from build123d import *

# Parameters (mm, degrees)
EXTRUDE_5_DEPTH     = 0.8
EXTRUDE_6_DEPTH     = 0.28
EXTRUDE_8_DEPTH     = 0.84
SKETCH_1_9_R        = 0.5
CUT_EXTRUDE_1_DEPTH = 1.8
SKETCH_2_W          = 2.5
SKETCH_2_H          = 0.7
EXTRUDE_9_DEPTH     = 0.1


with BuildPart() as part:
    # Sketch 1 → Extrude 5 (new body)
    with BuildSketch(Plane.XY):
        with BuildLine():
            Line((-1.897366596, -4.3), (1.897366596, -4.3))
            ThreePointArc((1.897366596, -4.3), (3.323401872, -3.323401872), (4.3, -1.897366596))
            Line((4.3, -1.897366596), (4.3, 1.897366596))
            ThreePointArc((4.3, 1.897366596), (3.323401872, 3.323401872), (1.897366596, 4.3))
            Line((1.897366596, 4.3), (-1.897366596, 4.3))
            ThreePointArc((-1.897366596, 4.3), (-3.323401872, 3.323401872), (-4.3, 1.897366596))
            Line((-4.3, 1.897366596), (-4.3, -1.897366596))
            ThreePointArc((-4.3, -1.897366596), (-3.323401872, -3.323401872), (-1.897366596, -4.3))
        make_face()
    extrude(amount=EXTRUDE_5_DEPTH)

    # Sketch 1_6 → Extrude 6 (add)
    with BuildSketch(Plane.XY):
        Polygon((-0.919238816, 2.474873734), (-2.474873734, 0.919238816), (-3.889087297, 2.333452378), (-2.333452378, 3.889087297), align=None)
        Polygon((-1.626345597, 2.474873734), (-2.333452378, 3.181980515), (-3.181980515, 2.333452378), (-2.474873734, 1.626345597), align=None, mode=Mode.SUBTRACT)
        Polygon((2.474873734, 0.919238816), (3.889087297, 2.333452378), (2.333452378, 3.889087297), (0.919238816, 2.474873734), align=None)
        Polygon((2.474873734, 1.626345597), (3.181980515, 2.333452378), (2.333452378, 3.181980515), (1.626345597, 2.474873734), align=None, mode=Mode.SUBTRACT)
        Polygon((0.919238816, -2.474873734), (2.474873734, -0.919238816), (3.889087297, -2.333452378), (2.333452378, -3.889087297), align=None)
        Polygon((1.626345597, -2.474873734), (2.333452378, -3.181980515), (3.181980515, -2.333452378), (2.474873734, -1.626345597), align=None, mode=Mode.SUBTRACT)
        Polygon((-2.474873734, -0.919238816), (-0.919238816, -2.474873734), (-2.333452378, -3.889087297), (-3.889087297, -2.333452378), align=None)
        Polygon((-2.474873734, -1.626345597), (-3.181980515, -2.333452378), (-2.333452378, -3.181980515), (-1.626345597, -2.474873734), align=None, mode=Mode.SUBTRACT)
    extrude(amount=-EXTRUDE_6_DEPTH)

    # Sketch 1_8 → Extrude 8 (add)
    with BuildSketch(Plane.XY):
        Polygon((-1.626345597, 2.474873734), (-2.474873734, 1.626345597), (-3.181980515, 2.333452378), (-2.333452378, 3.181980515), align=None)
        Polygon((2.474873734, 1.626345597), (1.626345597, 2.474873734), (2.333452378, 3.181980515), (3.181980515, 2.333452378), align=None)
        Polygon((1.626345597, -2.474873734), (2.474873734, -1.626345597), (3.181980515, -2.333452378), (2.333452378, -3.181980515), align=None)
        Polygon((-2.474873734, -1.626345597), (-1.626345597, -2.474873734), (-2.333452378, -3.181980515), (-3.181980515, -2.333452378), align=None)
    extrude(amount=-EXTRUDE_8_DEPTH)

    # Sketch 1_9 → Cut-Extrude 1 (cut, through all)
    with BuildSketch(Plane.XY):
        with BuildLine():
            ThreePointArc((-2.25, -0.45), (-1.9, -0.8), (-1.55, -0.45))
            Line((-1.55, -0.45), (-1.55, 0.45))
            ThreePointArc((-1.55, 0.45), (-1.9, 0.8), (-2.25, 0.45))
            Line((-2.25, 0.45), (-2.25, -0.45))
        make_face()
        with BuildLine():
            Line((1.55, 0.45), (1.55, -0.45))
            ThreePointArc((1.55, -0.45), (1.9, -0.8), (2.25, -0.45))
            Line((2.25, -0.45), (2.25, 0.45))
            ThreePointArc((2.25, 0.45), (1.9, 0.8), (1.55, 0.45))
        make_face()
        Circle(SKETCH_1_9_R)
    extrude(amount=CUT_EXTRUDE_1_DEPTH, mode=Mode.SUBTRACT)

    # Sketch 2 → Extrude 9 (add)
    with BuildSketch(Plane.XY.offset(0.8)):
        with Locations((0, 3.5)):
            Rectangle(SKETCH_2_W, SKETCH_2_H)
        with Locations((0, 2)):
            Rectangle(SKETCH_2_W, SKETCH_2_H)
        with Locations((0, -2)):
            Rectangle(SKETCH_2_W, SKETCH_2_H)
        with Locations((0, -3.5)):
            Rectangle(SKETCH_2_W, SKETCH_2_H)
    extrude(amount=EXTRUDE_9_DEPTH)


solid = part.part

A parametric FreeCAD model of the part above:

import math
import FreeCAD as App
import Part
import Sketcher
from FreeCAD import Vector
Q = App.Units.Quantity


def add_polygon(sketch, points):
    """Adds a closed chain of lines whose ends are joined by coincident constraints."""
    first, n = sketch.GeometryCount, len(points)
    for a, b in zip(points, points[1:] + points[:1]):
        sketch.addGeometry(Part.LineSegment(App.Vector(*a, 0), App.Vector(*b, 0)), False)
    for i in range(n):
        sketch.addConstraint(Sketcher.Constraint("Coincident", first + i, 2, first + (i + 1) % n, 1))

doc = App.newDocument("Part")
body = doc.addObject("PartDesign::Body", "Body")

sketch1 = body.newObject("Sketcher::SketchObject", "Sketch")
sketch1.AttachmentSupport = (doc.getObject("XY_Plane"), [""])
sketch1.MapMode = "FlatFace"
sketch1.addGeometry([
    Part.LineSegment(Vector(-1.9, -4.3, 0), Vector(1.9, -4.3, 0)),
    Part.ArcOfCircle(Part.Circle(Vector(0, 0, 0), Vector(0, 0, 1), 4.7), math.radians(-66), math.radians(-24)),
    Part.LineSegment(Vector(4.3, -1.9, 0), Vector(4.3, 1.9, 0)),
    Part.ArcOfCircle(Part.Circle(Vector(0, 0, 0), Vector(0, 0, 1), 4.7), math.radians(24), math.radians(66)),
    Part.LineSegment(Vector(1.9, 4.3, 0), Vector(-1.9, 4.3, 0)),
    Part.ArcOfCircle(Part.Circle(Vector(0, 0, 0), Vector(0, 0, 1), 4.7), math.radians(114), math.radians(156)),
    Part.LineSegment(Vector(-4.3, 1.9, 0), Vector(-4.3, -1.9, 0)),
    Part.ArcOfCircle(Part.Circle(Vector(0, 0, 0), Vector(0, 0, 1), 4.7), math.radians(-156), math.radians(-114)),
], False)
sketch1.addConstraint([
    Sketcher.Constraint("Coincident", 0, 2, 1, 1),
    Sketcher.Constraint("Coincident", 1, 2, 2, 1),
    Sketcher.Constraint("Coincident", 2, 2, 3, 1),
    Sketcher.Constraint("Coincident", 3, 2, 4, 1),
    Sketcher.Constraint("Coincident", 4, 2, 5, 1),
    Sketcher.Constraint("Coincident", 5, 2, 6, 1),
    Sketcher.Constraint("Coincident", 6, 2, 7, 1),
    Sketcher.Constraint("Coincident", 7, 2, 0, 1),
    Sketcher.Constraint("Horizontal", 0),
    Sketcher.Constraint("Vertical", 2),
    Sketcher.Constraint("Horizontal", 4),
    Sketcher.Constraint("Vertical", 6),
    Sketcher.Constraint("Coincident", 1, 3, -1, 1),
    Sketcher.Constraint("Coincident", 3, 3, -1, 1),
    Sketcher.Constraint("Coincident", 5, 3, -1, 1),
    Sketcher.Constraint("Coincident", 7, 3, -1, 1),
    Sketcher.Constraint("Equal", 1, 3),
    Sketcher.Constraint("Equal", 3, 5),
    Sketcher.Constraint("Equal", 5, 7),
    Sketcher.Constraint("Horizontal", 2, 2, 5, 2),
    Sketcher.Constraint("Vertical", 0, 2, 3, 2),
    Sketcher.Constraint("Equal", 4, 2),
    Sketcher.Constraint("Radius", 1, Q("4.7 mm")),
    Sketcher.Constraint("DistanceY", 0, 2, -1, 1, Q("4.3 mm")),
])
pad1 = body.newObject("PartDesign::Pad", "Pad")
pad1.Profile = sketch1
pad1.Length = 0.8

sketch2 = body.newObject("Sketcher::SketchObject", "Sketch001")
sketch2.AttachmentSupport = (doc.getObject("XY_Plane"), [""])
sketch2.MapMode = "FlatFace"
add_polygon(sketch2, [(-2.5, 0.9), (-0.9, 2.5), (-2.3, 3.9), (-3.9, 2.3)])
add_polygon(sketch2, [(-1.6, 2.5), (-2.5, 1.6), (-3.2, 2.3), (-2.3, 3.2)])
add_polygon(sketch2, [(2.5, 0.9), (3.9, 2.3), (2.3, 3.9), (0.9, 2.5)])
add_polygon(sketch2, [(3.2, 2.3), (2.5, 1.6), (1.6, 2.5), (2.3, 3.2)])
add_polygon(sketch2, [(2.5, -0.9), (0.9, -2.5), (2.3, -3.9), (3.9, -2.3)])
add_polygon(sketch2, [(1.6, -2.5), (2.5, -1.6), (3.2, -2.3), (2.3, -3.2)])
add_polygon(sketch2, [(-0.9, -2.5), (-2.5, -0.9), (-3.9, -2.3), (-2.3, -3.9)])
add_polygon(sketch2, [(-2.5, -1.6), (-1.6, -2.5), (-2.3, -3.2), (-3.2, -2.3)])
sketch2.addConstraint([
    Sketcher.Constraint("Symmetric", 0, 2, 16, 2, -1, 1),
    Sketcher.Constraint("Symmetric", 1, 2, 17, 2, -1, 1),
    Sketcher.Constraint("Symmetric", 2, 2, 18, 2, -1, 1),
    Sketcher.Constraint("Symmetric", 3, 2, 19, 2, -1, 1),
    Sketcher.Constraint("Symmetric", 4, 2, 20, 2, -1, 1),
    Sketcher.Constraint("Symmetric", 5, 2, 21, 2, -1, 1),
    Sketcher.Constraint("Symmetric", 6, 2, 22, 2, -1, 1),
    Sketcher.Constraint("Symmetric", 7, 2, 23, 2, -1, 1),
    Sketcher.Constraint("Symmetric", 11, 2, 24, 2, -1, 1),
    Sketcher.Constraint("Symmetric", 8, 2, 25, 2, -1, 1),
    Sketcher.Constraint("Symmetric", 9, 2, 26, 2, -1, 1),
    Sketcher.Constraint("Symmetric", 10, 2, 27, 2, -1, 1),
    Sketcher.Constraint("Symmetric", 13, 2, 28, 2, -1, 1),
    Sketcher.Constraint("Symmetric", 14, 2, 29, 2, -1, 1),
    Sketcher.Constraint("Symmetric", 15, 2, 30, 2, -1, 1),
    Sketcher.Constraint("Symmetric", 12, 2, 31, 2, -1, 1),
    Sketcher.Constraint("Symmetric", 2, 2, 8, 2, -2),
    Sketcher.Constraint("Symmetric", 1, 2, 9, 2, -2),
    Sketcher.Constraint("Symmetric", 0, 2, 10, 2, -2),
    Sketcher.Constraint("Symmetric", 3, 2, 11, 2, -2),
    Sketcher.Constraint("Symmetric", 4, 2, 12, 2, -2),
    Sketcher.Constraint("Symmetric", 7, 2, 13, 2, -2),
    Sketcher.Constraint("Symmetric", 6, 2, 14, 2, -2),
    Sketcher.Constraint("Symmetric", 5, 2, 15, 2, -2),
    Sketcher.Constraint("Perpendicular", 0, 1),
    Sketcher.Constraint("Perpendicular", 1, 2),
    Sketcher.Constraint("Perpendicular", 2, 3),
    Sketcher.Constraint("Perpendicular", 3, 4),
    Sketcher.Constraint("Perpendicular", 4, 5),
    Sketcher.Constraint("Perpendicular", 5, 6),
    Sketcher.Constraint("Perpendicular", 6, 7),
    Sketcher.Constraint("Perpendicular", 7, 8),
    Sketcher.Constraint("Horizontal", 2, 2, 5, 2),
    Sketcher.Constraint("Horizontal", 0, 2, 7, 2),
    Sketcher.Constraint("Vertical", 3, 2, 4, 2),
    Sketcher.Constraint("Distance", 1, Q("2 mm")),
    Sketcher.Constraint("Distance", 5, Q("1 mm")),
    Sketcher.Constraint("Distance", 0, Q("2.2 mm")),
    Sketcher.Constraint("DistanceX", 0, 2, -1, 1, Q("0.919239 mm")),
    Sketcher.Constraint("DistanceY", -1, 1, 3, 2, Q("0.919239 mm")),
])
pad2 = body.newObject("PartDesign::Pad", "Pad001")
pad2.Profile = sketch2
pad2.Length = 0.28
pad2.Reversed = True

sketch3 = body.newObject("Sketcher::SketchObject", "Sketch002")
sketch3.AttachmentSupport = (doc.getObject("XY_Plane"), [""])
sketch3.MapMode = "FlatFace"
add_polygon(sketch3, [(-2.5, 1.6), (-1.6, 2.5), (-2.3, 3.2), (-3.2, 2.3)])
add_polygon(sketch3, [(1.6, 2.5), (2.5, 1.6), (3.2, 2.3), (2.3, 3.2)])
add_polygon(sketch3, [(2.5, -1.6), (1.6, -2.5), (2.3, -3.2), (3.2, -2.3)])
add_polygon(sketch3, [(-1.6, -2.5), (-2.5, -1.6), (-3.2, -2.3), (-2.3, -3.2)])
sketch3.addConstraint([
    Sketcher.Constraint("Symmetric", 0, 2, 8, 2, -1, 1),
    Sketcher.Constraint("Symmetric", 1, 2, 9, 2, -1, 1),
    Sketcher.Constraint("Symmetric", 2, 2, 10, 2, -1, 1),
    Sketcher.Constraint("Symmetric", 3, 2, 11, 2, -1, 1),
    Sketcher.Constraint("Symmetric", 4, 2, 12, 2, -1, 1),
    Sketcher.Constraint("Symmetric", 5, 2, 13, 2, -1, 1),
    Sketcher.Constraint("Symmetric", 6, 2, 14, 2, -1, 1),
    Sketcher.Constraint("Symmetric", 7, 2, 15, 2, -1, 1),
    Sketcher.Constraint("Symmetric", 3, 2, 4, 2, -2),
    Sketcher.Constraint("Symmetric", 2, 2, 5, 2, -2),
    Sketcher.Constraint("Symmetric", 1, 2, 6, 2, -2),
    Sketcher.Constraint("Symmetric", 0, 2, 7, 2, -2),
    Sketcher.Constraint("Perpendicular", 0, 1),
    Sketcher.Constraint("Perpendicular", 1, 2),
    Sketcher.Constraint("Perpendicular", 2, 3),
    Sketcher.Constraint("Parallel", 3, 4),
    Sketcher.Constraint("Distance", 1, Q("1 mm")),
    Sketcher.Constraint("Distance", 0, Q("1.2 mm")),
    Sketcher.Constraint("DistanceY", -1, 1, 1, 2, Q("3.181981 mm")),
    Sketcher.Constraint("DistanceX", 2, 2, -1, 1, Q("3.181981 mm")),
])
pad3 = body.newObject("PartDesign::Pad", "Pad002")
pad3.Profile = sketch3
pad3.Length = 0.84
pad3.Reversed = True

sketch4 = body.newObject("Sketcher::SketchObject", "Sketch003")
sketch4.AttachmentSupport = (doc.getObject("XY_Plane"), [""])
sketch4.MapMode = "FlatFace"
sketch4.addGeometry([
    Part.ArcOfCircle(Part.Circle(Vector(-1.9, -0.45, 0), Vector(0, 0, 1), 0.35), math.radians(180), math.radians(360)),
    Part.LineSegment(Vector(-1.55, -0.45, 0), Vector(-1.55, 0.45, 0)),
    Part.ArcOfCircle(Part.Circle(Vector(-1.9, 0.45, 0), Vector(0, 0, 1), 0.35), math.radians(0), math.radians(180)),
    Part.LineSegment(Vector(-2.25, 0.45, 0), Vector(-2.25, -0.45, 0)),
    Part.LineSegment(Vector(1.55, 0.45, 0), Vector(1.55, -0.45, 0)),
    Part.ArcOfCircle(Part.Circle(Vector(1.9, -0.45, 0), Vector(0, 0, 1), 0.35), math.radians(180), math.radians(360)),
    Part.LineSegment(Vector(2.25, -0.45, 0), Vector(2.25, 0.45, 0)),
    Part.ArcOfCircle(Part.Circle(Vector(1.9, 0.45, 0), Vector(0, 0, 1), 0.35), math.radians(0), math.radians(180)),
    Part.Circle(Vector(0, 0, 0), Vector(0, 0, 1), 0.5),
], False)
sketch4.addConstraint([
    Sketcher.Constraint("Tangent", 0, 2, 1, 1),
    Sketcher.Constraint("Tangent", 1, 2, 2, 1),
    Sketcher.Constraint("Tangent", 2, 2, 3, 1),
    Sketcher.Constraint("Tangent", 3, 2, 0, 1),
    Sketcher.Constraint("Tangent", 4, 2, 5, 1),
    Sketcher.Constraint("Tangent", 5, 2, 6, 1),
    Sketcher.Constraint("Tangent", 6, 2, 7, 1),
    Sketcher.Constraint("Tangent", 7, 2, 4, 1),
    Sketcher.Constraint("Vertical", 1),
    Sketcher.Constraint("Vertical", 3),
    Sketcher.Constraint("Vertical", 4),
    Sketcher.Constraint("Vertical", 6),
    Sketcher.Constraint("Coincident", 8, 3, -1, 1),
    Sketcher.Constraint("Equal", 2, 5),
    Sketcher.Constraint("Symmetric", 2, 3, 5, 3, -1, 1),
    Sketcher.Constraint("Horizontal", 0, 3, 5, 3),
    Sketcher.Constraint("Horizontal", 2, 3, 7, 3),
    Sketcher.Constraint("Diameter", 8, Q("1 mm")),
    Sketcher.Constraint("Radius", 0, Q("0.35 mm")),
    Sketcher.Constraint("DistanceY", 1, 1, 1, 2, Q("0.9 mm")),
    Sketcher.Constraint("DistanceX", 0, 3, -1, 1, Q("1.9 mm")),
])
pocket1 = body.newObject("PartDesign::Pocket", "Pocket")
pocket1.Profile = sketch4
pocket1.Type = "ThroughAll"
pocket1.Reversed = True

sketch5 = body.newObject("Sketcher::SketchObject", "Sketch004")
sketch5.AttachmentSupport = (doc.getObject("XY_Plane"), [""])
sketch5.MapMode = "FlatFace"
sketch5.AttachmentOffset = App.Placement(Vector(0, 0, 0.8), App.Rotation())
add_polygon(sketch5, [(-1.2, 3.9), (-1.2, 3.1), (1.2, 3.1), (1.2, 3.9)])
add_polygon(sketch5, [(-1.2, 2.4), (-1.2, 1.6), (1.2, 1.6), (1.2, 2.4)])
add_polygon(sketch5, [(-1.2, -1.6), (-1.2, -2.4), (1.2, -2.4), (1.2, -1.6)])
add_polygon(sketch5, [(-1.2, -3.1), (-1.2, -3.9), (1.2, -3.9), (1.2, -3.1)])
sketch5.addConstraint([
    Sketcher.Constraint("Vertical", 0),
    Sketcher.Constraint("Horizontal", 1),
    Sketcher.Constraint("Vertical", 2),
    Sketcher.Constraint("Horizontal", 3),
    Sketcher.Constraint("Vertical", 4),
    Sketcher.Constraint("Horizontal", 5),
    Sketcher.Constraint("Vertical", 6),
    Sketcher.Constraint("Horizontal", 7),
    Sketcher.Constraint("Vertical", 8),
    Sketcher.Constraint("Horizontal", 9),
    Sketcher.Constraint("Vertical", 10),
    Sketcher.Constraint("Horizontal", 11),
    Sketcher.Constraint("Vertical", 12),
    Sketcher.Constraint("Horizontal", 13),
    Sketcher.Constraint("Vertical", 14),
    Sketcher.Constraint("Horizontal", 15),
    Sketcher.Constraint("Symmetric", 6, 2, 8, 2, -1, 1),
    Sketcher.Constraint("Symmetric", 4, 2, 10, 2, -1, 1),
    Sketcher.Constraint("Symmetric", 2, 2, 12, 2, -1, 1),
    Sketcher.Constraint("Symmetric", 0, 2, 14, 2, -1, 1),
    Sketcher.Constraint("Vertical", 3, 2, 4, 2),
    Sketcher.Constraint("Vertical", 2, 2, 5, 2),
    Sketcher.Constraint("Vertical", 7, 2, 8, 2),
    Sketcher.Constraint("Equal", 2, 4),
    Sketcher.Constraint("DistanceX", 1, 1, 1, 2, Q("2.5 mm")),
    Sketcher.Constraint("DistanceY", 0, 2, 0, 1, Q("0.7 mm")),
    Sketcher.Constraint("DistanceY", 8, 2, 4, 2, Q("4 mm")),
    Sketcher.Constraint("DistanceY", 4, 2, 0, 2, Q("1.5 mm")),
])
pad4 = body.newObject("PartDesign::Pad", "Pad003")
pad4.Profile = sketch5
pad4.Length = 0.1

doc.recompute()
